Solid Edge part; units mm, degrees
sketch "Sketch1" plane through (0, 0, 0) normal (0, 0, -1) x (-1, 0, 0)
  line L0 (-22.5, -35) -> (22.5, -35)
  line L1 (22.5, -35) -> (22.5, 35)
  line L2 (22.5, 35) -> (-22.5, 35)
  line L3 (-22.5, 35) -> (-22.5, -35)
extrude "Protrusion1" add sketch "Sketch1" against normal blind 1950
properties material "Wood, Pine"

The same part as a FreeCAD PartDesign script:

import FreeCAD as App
import Part
import Sketcher

V = App.Vector
Q = App.Units.Quantity

doc = App.newDocument("Part")
body = doc.addObject("PartDesign::Body", "Body")

# Sketch on XY plane
sketch1 = body.newObject("Sketcher::SketchObject", "Sketch")
sketch1.AttachmentSupport = (doc.getObject("XY_Plane"), [""])
sketch1.MapMode = "FlatFace"
sketch1.addGeometry([
    Part.LineSegment(V(22, 35, 0), V(22, -35, 0)),
    Part.LineSegment(V(22, -35, 0), V(-22, -35, 0)),
    Part.LineSegment(V(-22, -35, 0), V(-22, 35, 0)),
    Part.LineSegment(V(-22, 35, 0), V(22, 35, 0)),
], False)
sketch1.addConstraint([
    Sketcher.Constraint("Coincident", 0, 2, 1, 1),
    Sketcher.Constraint("Coincident", 1, 2, 2, 1),
    Sketcher.Constraint("Coincident", 2, 2, 3, 1),
    Sketcher.Constraint("Coincident", 3, 2, 0, 1),
    Sketcher.Constraint("Vertical", 0),
    Sketcher.Constraint("Horizontal", 1),
    Sketcher.Constraint("Vertical", 2),
    Sketcher.Constraint("Horizontal", 3),
    Sketcher.Constraint("Symmetric", 0, 2, 2, 2, -1, 1),
    Sketcher.Constraint("DistanceX", 1, 2, 1, 1, Q("45 mm")),
    Sketcher.Constraint("DistanceY", 0, 2, 0, 1, Q("70 mm")),
])
pad1 = body.newObject("PartDesign::Pad", "Pad")
pad1.Profile = sketch1
pad1.Length = 1950

doc.recompute()
